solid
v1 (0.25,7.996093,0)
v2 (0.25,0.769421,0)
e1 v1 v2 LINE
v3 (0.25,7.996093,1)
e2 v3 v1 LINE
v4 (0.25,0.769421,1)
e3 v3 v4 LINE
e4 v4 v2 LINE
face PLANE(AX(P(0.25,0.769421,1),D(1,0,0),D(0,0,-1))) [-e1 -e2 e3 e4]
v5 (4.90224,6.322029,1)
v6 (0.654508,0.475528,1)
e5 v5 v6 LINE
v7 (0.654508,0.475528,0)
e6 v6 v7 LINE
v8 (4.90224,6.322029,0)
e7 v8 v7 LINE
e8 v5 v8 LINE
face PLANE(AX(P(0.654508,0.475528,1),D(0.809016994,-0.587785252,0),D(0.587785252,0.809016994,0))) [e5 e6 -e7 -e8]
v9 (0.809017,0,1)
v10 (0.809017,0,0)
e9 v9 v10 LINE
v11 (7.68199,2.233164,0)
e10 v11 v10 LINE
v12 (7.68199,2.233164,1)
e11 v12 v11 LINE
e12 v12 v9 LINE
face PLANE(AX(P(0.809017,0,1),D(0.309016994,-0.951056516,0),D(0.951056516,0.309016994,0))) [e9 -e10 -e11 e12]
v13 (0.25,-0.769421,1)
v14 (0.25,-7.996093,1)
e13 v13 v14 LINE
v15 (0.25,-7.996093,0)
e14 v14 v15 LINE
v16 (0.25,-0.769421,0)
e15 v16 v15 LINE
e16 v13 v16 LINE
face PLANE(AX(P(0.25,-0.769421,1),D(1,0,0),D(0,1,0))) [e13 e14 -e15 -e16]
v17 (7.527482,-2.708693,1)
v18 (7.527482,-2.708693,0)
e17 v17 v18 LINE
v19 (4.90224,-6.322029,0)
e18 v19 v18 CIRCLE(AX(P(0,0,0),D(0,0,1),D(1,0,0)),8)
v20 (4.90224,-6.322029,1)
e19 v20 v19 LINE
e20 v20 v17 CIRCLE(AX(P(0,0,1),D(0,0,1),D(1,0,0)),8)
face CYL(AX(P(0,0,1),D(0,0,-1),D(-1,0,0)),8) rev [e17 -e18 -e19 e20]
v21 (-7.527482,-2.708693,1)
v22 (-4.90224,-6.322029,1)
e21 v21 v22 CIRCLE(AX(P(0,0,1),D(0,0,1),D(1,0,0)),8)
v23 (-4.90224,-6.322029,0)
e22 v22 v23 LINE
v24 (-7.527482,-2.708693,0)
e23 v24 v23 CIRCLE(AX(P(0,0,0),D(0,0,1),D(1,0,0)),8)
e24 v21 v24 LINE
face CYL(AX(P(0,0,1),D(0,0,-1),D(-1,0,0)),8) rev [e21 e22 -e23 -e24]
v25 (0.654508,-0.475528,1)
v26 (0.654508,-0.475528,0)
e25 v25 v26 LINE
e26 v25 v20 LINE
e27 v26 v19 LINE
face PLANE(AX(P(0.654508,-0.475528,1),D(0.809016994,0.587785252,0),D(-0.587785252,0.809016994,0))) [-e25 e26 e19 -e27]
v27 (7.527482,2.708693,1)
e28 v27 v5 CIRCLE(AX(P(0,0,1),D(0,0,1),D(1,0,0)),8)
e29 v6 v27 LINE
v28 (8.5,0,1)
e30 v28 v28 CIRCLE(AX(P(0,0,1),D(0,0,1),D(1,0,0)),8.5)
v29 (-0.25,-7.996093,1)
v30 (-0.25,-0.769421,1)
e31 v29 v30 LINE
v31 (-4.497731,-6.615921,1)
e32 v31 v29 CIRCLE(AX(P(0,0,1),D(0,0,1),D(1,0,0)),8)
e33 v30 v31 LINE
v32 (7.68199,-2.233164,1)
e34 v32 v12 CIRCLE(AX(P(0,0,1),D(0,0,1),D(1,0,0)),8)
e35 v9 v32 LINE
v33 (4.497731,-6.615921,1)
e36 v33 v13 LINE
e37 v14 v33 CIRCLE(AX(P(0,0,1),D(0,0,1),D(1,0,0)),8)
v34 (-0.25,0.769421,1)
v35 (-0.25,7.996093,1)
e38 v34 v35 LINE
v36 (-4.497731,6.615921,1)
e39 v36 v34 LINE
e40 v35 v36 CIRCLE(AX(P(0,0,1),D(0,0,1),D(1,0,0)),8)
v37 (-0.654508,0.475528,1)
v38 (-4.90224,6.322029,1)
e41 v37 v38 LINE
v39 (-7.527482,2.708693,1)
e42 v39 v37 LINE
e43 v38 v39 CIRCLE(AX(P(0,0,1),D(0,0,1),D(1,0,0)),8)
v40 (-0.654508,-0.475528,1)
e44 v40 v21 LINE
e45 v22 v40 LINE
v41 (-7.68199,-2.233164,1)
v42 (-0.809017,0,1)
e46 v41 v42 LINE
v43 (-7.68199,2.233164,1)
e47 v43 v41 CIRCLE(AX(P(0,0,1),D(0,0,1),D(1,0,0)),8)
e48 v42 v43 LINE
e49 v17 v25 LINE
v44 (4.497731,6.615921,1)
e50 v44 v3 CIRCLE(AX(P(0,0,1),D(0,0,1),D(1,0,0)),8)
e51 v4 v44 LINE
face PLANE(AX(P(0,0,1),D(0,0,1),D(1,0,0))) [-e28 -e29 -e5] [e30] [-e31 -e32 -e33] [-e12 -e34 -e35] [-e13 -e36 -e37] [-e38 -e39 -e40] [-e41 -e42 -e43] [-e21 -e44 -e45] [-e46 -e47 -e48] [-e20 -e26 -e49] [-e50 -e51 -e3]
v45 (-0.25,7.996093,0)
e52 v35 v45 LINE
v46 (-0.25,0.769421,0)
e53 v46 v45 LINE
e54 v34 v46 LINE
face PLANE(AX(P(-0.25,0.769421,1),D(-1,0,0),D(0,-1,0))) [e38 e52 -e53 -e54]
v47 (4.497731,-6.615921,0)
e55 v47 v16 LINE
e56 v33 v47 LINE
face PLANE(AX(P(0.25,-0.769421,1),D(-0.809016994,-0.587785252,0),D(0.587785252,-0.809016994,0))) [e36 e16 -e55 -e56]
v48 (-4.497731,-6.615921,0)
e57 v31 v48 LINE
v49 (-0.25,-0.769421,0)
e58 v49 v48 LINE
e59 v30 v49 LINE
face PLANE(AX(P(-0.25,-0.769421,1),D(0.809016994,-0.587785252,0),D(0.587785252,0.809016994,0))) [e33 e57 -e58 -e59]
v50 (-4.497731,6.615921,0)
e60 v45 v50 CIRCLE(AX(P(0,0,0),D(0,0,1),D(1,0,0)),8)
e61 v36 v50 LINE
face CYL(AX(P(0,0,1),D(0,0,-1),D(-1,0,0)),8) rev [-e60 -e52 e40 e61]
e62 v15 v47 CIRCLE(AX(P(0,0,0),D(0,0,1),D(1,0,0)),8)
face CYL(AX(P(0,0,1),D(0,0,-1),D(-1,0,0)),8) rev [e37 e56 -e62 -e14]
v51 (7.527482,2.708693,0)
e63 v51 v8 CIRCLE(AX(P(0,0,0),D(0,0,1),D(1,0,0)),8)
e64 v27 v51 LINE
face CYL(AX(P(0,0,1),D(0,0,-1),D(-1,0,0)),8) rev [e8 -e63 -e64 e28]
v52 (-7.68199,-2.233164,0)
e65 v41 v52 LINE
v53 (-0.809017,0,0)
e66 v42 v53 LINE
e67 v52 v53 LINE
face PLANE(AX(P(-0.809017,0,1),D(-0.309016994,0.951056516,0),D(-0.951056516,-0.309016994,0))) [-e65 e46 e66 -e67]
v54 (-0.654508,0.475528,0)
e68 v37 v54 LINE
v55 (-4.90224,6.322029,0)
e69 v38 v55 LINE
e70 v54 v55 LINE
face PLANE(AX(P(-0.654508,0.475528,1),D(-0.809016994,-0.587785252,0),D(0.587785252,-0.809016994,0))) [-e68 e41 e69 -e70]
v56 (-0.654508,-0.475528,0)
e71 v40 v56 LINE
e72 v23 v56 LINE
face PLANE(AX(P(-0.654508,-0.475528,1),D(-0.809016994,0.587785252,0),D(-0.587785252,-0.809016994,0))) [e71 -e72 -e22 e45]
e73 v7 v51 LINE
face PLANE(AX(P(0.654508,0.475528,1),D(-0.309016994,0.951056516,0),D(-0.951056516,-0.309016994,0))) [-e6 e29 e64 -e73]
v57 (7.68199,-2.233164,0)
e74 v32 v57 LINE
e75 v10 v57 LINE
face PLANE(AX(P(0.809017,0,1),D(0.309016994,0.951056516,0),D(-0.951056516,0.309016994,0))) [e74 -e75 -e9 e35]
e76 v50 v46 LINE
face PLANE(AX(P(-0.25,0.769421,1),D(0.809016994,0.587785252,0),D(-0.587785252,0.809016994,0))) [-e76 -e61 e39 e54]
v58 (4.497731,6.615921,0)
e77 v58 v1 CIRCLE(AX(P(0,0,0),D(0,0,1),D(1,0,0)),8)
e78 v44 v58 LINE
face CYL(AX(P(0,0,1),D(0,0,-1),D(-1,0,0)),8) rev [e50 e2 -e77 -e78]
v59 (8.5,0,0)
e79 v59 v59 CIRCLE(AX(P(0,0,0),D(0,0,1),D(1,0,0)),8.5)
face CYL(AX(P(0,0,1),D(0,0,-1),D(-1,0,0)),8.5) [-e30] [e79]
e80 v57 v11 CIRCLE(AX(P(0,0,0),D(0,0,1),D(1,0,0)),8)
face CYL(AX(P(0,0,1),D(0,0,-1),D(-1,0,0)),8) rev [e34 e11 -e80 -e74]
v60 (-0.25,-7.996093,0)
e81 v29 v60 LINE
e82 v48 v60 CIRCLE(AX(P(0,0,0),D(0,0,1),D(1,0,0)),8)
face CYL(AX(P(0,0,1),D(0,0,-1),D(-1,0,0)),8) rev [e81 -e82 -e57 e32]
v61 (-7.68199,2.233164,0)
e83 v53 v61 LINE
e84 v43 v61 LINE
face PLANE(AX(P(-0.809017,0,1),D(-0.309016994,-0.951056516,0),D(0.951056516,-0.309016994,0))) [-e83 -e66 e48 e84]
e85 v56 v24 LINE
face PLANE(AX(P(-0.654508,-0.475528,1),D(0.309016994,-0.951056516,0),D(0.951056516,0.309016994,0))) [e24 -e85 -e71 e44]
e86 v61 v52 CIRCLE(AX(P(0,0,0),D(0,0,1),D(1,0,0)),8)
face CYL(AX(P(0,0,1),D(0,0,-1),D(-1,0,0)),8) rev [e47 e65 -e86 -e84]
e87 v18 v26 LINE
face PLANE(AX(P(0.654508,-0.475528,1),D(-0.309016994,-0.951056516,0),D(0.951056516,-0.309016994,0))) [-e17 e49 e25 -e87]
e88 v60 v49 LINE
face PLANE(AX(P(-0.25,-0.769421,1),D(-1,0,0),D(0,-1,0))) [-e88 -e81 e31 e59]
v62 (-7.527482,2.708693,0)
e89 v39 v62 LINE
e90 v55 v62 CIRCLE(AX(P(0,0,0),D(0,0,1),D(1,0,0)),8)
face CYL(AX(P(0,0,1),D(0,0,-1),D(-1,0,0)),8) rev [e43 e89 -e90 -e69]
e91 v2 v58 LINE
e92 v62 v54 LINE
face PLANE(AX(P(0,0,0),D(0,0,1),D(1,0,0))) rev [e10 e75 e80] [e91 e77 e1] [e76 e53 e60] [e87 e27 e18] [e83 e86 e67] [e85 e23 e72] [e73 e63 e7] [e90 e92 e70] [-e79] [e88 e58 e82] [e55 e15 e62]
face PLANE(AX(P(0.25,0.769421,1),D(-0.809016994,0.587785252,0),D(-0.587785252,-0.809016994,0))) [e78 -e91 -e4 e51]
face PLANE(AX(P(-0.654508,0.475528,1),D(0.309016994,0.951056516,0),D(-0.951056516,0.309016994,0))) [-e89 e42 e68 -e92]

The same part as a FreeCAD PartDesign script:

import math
import FreeCAD as App
import Part
import Sketcher
Q = App.Units.Quantity

doc = App.newDocument("Part")
body = doc.addObject("PartDesign::Body", "Body")

# Sketch on XY plane
sketch1 = body.newObject("Sketcher::SketchObject", "Sketch")
sketch1.AttachmentSupport = (doc.getObject("XY_Plane"), [""])
sketch1.MapMode = "FlatFace"
sketch1.addGeometry(Part.Circle(App.Vector(0, 0, 0), App.Vector(0, 0, 1), 8.5), False)
sketch1.addGeometry(Part.LineSegment(App.Vector(-4.497731, -6.615921, 0), App.Vector(-0.25, -0.769421, 0)), False)
sketch1.addGeometry(Part.LineSegment(App.Vector(-0.25, -0.769421, 0), App.Vector(-0.25, -7.996093, 0)), False)
sketch1.addGeometry(Part.ArcOfCircle(Part.Circle(App.Vector(0, 0, 0), App.Vector(0, 0, 1), 8), math.radians(-124.209215), math.radians(-91.790785)), False)
sketch1.addGeometry(Part.LineSegment(App.Vector(-7.527482, -2.708693, 0), App.Vector(-0.654508, -0.475528, 0)), False)
sketch1.addGeometry(Part.LineSegment(App.Vector(-0.654508, -0.475528, 0), App.Vector(-4.90224, -6.322029, 0)), False)
sketch1.addGeometry(Part.ArcOfCircle(Part.Circle(App.Vector(0, 0, 0), App.Vector(0, 0, 1), 8), math.radians(-160.209215), math.radians(-127.790785)), False)
sketch1.addGeometry(Part.LineSegment(App.Vector(-7.68199, 2.233164, 0), App.Vector(-0.809017, 0, 0)), False)
sketch1.addGeometry(Part.LineSegment(App.Vector(-0.809017, 0, 0), App.Vector(-7.68199, -2.233164, 0)), False)
sketch1.addGeometry(Part.ArcOfCircle(Part.Circle(App.Vector(0, 0, 0), App.Vector(0, 0, 1), 8), math.radians(163.790785), math.radians(196.209215)), False)
sketch1.addGeometry(Part.LineSegment(App.Vector(0.25, -7.996093, 0), App.Vector(0.25, -0.769421, 0)), False)
sketch1.addGeometry(Part.LineSegment(App.Vector(0.25, -0.769421, 0), App.Vector(4.497731, -6.615921, 0)), False)
sketch1.addGeometry(Part.ArcOfCircle(Part.Circle(App.Vector(0, 0, 0), App.Vector(0, 0, 1), 8), math.radians(-88.209215), math.radians(-55.790785)), False)
sketch1.addGeometry(Part.LineSegment(App.Vector(4.90224, -6.322029, 0), App.Vector(0.654508, -0.475528, 0)), False)
sketch1.addGeometry(Part.LineSegment(App.Vector(0.654508, -0.475528, 0), App.Vector(7.527482, -2.708693, 0)), False)
sketch1.addGeometry(Part.ArcOfCircle(Part.Circle(App.Vector(0, 0, 0), App.Vector(0, 0, 1), 8), math.radians(-52.209215), math.radians(-19.790785)), False)
sketch1.addGeometry(Part.LineSegment(App.Vector(-4.90224, 6.322029, 0), App.Vector(-0.654508, 0.475528, 0)), False)
sketch1.addGeometry(Part.LineSegment(App.Vector(-0.654508, 0.475528, 0), App.Vector(-7.527482, 2.708693, 0)), False)
sketch1.addGeometry(Part.ArcOfCircle(Part.Circle(App.Vector(0, 0, 0), App.Vector(0, 0, 1), 8), math.radians(127.790785), math.radians(160.209215)), False)
sketch1.addGeometry(Part.LineSegment(App.Vector(-0.25, 7.996093, 0), App.Vector(-0.25, 0.769421, 0)), False)
sketch1.addGeometry(Part.LineSegment(App.Vector(-0.25, 0.769421, 0), App.Vector(-4.497731, 6.615921, 0)), False)
sketch1.addGeometry(Part.ArcOfCircle(Part.Circle(App.Vector(0, 0, 0), App.Vector(0, 0, 1), 8), math.radians(91.790785), math.radians(124.209215)), False)
sketch1.addGeometry(Part.LineSegment(App.Vector(7.68199, -2.233164, 0), App.Vector(0.809017, 0, 0)), False)
sketch1.addGeometry(Part.LineSegment(App.Vector(0.809017, 0, 0), App.Vector(7.68199, 2.233164, 0)), False)
sketch1.addGeometry(Part.ArcOfCircle(Part.Circle(App.Vector(0, 0, 0), App.Vector(0, 0, 1), 8), math.radians(-16.209215), math.radians(16.209215)), False)
sketch1.addGeometry(Part.LineSegment(App.Vector(7.527482, 2.708693, 0), App.Vector(0.654508, 0.475528, 0)), False)
sketch1.addGeometry(Part.LineSegment(App.Vector(0.654508, 0.475528, 0), App.Vector(4.90224, 6.322029, 0)), False)
sketch1.addGeometry(Part.ArcOfCircle(Part.Circle(App.Vector(0, 0, 0), App.Vector(0, 0, 1), 8), math.radians(19.790785), math.radians(52.209215)), False)
sketch1.addGeometry(Part.LineSegment(App.Vector(4.497731, 6.615921, 0), App.Vector(0.25, 0.769421, 0)), False)
sketch1.addGeometry(Part.LineSegment(App.Vector(0.25, 0.769421, 0), App.Vector(0.25, 7.996093, 0)), False)
sketch1.addGeometry(Part.ArcOfCircle(Part.Circle(App.Vector(0, 0, 0), App.Vector(0, 0, 1), 8), math.radians(55.790785), math.radians(88.209215)), False)
sketch1.addConstraint(Sketcher.Constraint("Coincident", 1, 2, 2, 1))
sketch1.addConstraint(Sketcher.Constraint("Coincident", 2, 2, 3, 2))
sketch1.addConstraint(Sketcher.Constraint("Coincident", 3, 1, 1, 1))
sketch1.addConstraint(Sketcher.Constraint("Coincident", 4, 2, 5, 1))
sketch1.addConstraint(Sketcher.Constraint("Coincident", 5, 2, 6, 2))
sketch1.addConstraint(Sketcher.Constraint("Coincident", 6, 1, 4, 1))
sketch1.addConstraint(Sketcher.Constraint("Coincident", 7, 2, 8, 1))
sketch1.addConstraint(Sketcher.Constraint("Coincident", 8, 2, 9, 2))
sketch1.addConstraint(Sketcher.Constraint("Coincident", 9, 1, 7, 1))
sketch1.addConstraint(Sketcher.Constraint("Coincident", 10, 2, 11, 1))
sketch1.addConstraint(Sketcher.Constraint("Coincident", 11, 2, 12, 2))
sketch1.addConstraint(Sketcher.Constraint("Coincident", 12, 1, 10, 1))
sketch1.addConstraint(Sketcher.Constraint("Coincident", 13, 2, 14, 1))
sketch1.addConstraint(Sketcher.Constraint("Coincident", 14, 2, 15, 2))
sketch1.addConstraint(Sketcher.Constraint("Coincident", 15, 1, 13, 1))
sketch1.addConstraint(Sketcher.Constraint("Coincident", 16, 2, 17, 1))
sketch1.addConstraint(Sketcher.Constraint("Coincident", 17, 2, 18, 2))
sketch1.addConstraint(Sketcher.Constraint("Coincident", 18, 1, 16, 1))
sketch1.addConstraint(Sketcher.Constraint("Coincident", 19, 2, 20, 1))
sketch1.addConstraint(Sketcher.Constraint("Coincident", 20, 2, 21, 2))
sketch1.addConstraint(Sketcher.Constraint("Coincident", 21, 1, 19, 1))
sketch1.addConstraint(Sketcher.Constraint("Coincident", 22, 2, 23, 1))
sketch1.addConstraint(Sketcher.Constraint("Coincident", 23, 2, 24, 2))
sketch1.addConstraint(Sketcher.Constraint("Coincident", 24, 1, 22, 1))
sketch1.addConstraint(Sketcher.Constraint("Coincident", 25, 2, 26, 1))
sketch1.addConstraint(Sketcher.Constraint("Coincident", 26, 2, 27, 2))
sketch1.addConstraint(Sketcher.Constraint("Coincident", 27, 1, 25, 1))
sketch1.addConstraint(Sketcher.Constraint("Coincident", 28, 2, 29, 1))
sketch1.addConstraint(Sketcher.Constraint("Coincident", 29, 2, 30, 2))
sketch1.addConstraint(Sketcher.Constraint("Coincident", 30, 1, 28, 1))
sketch1.addConstraint(Sketcher.Constraint("Vertical", 2))
sketch1.addConstraint(Sketcher.Constraint("Vertical", 10))
sketch1.addConstraint(Sketcher.Constraint("Vertical", 19))
sketch1.addConstraint(Sketcher.Constraint("Vertical", 29))
sketch1.addConstraint(Sketcher.Constraint("Coincident", 0, 3, -1, 1))
sketch1.addConstraint(Sketcher.Constraint("Coincident", 3, 3, -1, 1))
sketch1.addConstraint(Sketcher.Constraint("Coincident", 6, 3, -1, 1))
sketch1.addConstraint(Sketcher.Constraint("Coincident", 9, 3, -1, 1))
sketch1.addConstraint(Sketcher.Constraint("Coincident", 12, 3, -1, 1))
sketch1.addConstraint(Sketcher.Constraint("Coincident", 15, 3, -1, 1))
sketch1.addConstraint(Sketcher.Constraint("Coincident", 18, 3, -1, 1))
sketch1.addConstraint(Sketcher.Constraint("Coincident", 21, 3, -1, 1))
sketch1.addConstraint(Sketcher.Constraint("Coincident", 24, 3, -1, 1))
sketch1.addConstraint(Sketcher.Constraint("Coincident", 27, 3, -1, 1))
sketch1.addConstraint(Sketcher.Constraint("Coincident", 30, 3, -1, 1))
sketch1.addConstraint(Sketcher.Constraint("Equal", 3, 6))
sketch1.addConstraint(Sketcher.Constraint("Equal", 6, 9))
sketch1.addConstraint(Sketcher.Constraint("Equal", 9, 12))
sketch1.addConstraint(Sketcher.Constraint("Equal", 12, 15))
sketch1.addConstraint(Sketcher.Constraint("Equal", 15, 18))
sketch1.addConstraint(Sketcher.Constraint("Equal", 18, 21))
sketch1.addConstraint(Sketcher.Constraint("Equal", 21, 24))
sketch1.addConstraint(Sketcher.Constraint("Equal", 24, 27))
sketch1.addConstraint(Sketcher.Constraint("Equal", 27, 30))
sketch1.addConstraint(Sketcher.Constraint("Symmetric", 13, 2, 16, 2, -1, 1))
sketch1.addConstraint(Sketcher.Constraint("Symmetric", 10, 2, 19, 2, -1, 1))
sketch1.addConstraint(Sketcher.Constraint("Symmetric", 7, 2, 22, 2, -1, 1))
sketch1.addConstraint(Sketcher.Constraint("Symmetric", 4, 2, 25, 2, -1, 1))
sketch1.addConstraint(Sketcher.Constraint("Symmetric", 1, 2, 28, 2, -1, 1))
sketch1.addConstraint(Sketcher.Constraint("Symmetric", 1, 2, 10, 2, -2))
sketch1.addConstraint(Sketcher.Constraint("Symmetric", 4, 2, 13, 2, -2))
sketch1.addConstraint(Sketcher.Constraint("PointOnObject", 7, 2, -1))
sketch1.addConstraint(Sketcher.Constraint("Parallel", 1, 5))
sketch1.addConstraint(Sketcher.Constraint("Parallel", 4, 8))
sketch1.addConstraint(Sketcher.Constraint("Parallel", 11, 13))
sketch1.addConstraint(Sketcher.Constraint("Parallel", 7, 14))
sketch1.addConstraint(Sketcher.Constraint("Parallel", 13, 16))
sketch1.addConstraint(Sketcher.Constraint("Parallel", 14, 17))
sketch1.addConstraint(Sketcher.Constraint("Parallel", 16, 20))
sketch1.addConstraint(Sketcher.Constraint("Parallel", 17, 22))
sketch1.addConstraint(Sketcher.Constraint("Parallel", 8, 23))
sketch1.addConstraint(Sketcher.Constraint("Parallel", 23, 25))
sketch1.addConstraint(Sketcher.Constraint("Parallel", 5, 26))
sketch1.addConstraint(Sketcher.Constraint("Parallel", 26, 28))
sketch1.addConstraint(Sketcher.Constraint("Horizontal", 3, 1, 11, 2))
sketch1.addConstraint(Sketcher.Constraint("Horizontal", 6, 1, 14, 2))
sketch1.addConstraint(Sketcher.Constraint("Equal", 1, 4))
sketch1.addConstraint(Sketcher.Constraint("Equal", 4, 5))
sketch1.addConstraint(Sketcher.Constraint("Equal", 5, 7))
sketch1.addConstraint(Sketcher.Constraint("Diameter", 0, 17.0))
sketch1.addConstraint(Sketcher.Constraint("Radius", 3, 8.0))
sketch1.addConstraint(Sketcher.Constraint("Angle", 1, Q("54 deg")))
sketch1.addConstraint(Sketcher.Constraint("Angle", 4, Q("18 deg")))
sketch1.addConstraint(Sketcher.Constraint("DistanceX", 1, 2, 10, 2, 0.5))
sketch1.addConstraint(Sketcher.Constraint("DistanceY", 2, 2, 2, 1, 7.226672))
pad1 = body.newObject("PartDesign::Pad", "Pad")
pad1.Profile = sketch1
pad1.Length = 1

doc.recompute()
